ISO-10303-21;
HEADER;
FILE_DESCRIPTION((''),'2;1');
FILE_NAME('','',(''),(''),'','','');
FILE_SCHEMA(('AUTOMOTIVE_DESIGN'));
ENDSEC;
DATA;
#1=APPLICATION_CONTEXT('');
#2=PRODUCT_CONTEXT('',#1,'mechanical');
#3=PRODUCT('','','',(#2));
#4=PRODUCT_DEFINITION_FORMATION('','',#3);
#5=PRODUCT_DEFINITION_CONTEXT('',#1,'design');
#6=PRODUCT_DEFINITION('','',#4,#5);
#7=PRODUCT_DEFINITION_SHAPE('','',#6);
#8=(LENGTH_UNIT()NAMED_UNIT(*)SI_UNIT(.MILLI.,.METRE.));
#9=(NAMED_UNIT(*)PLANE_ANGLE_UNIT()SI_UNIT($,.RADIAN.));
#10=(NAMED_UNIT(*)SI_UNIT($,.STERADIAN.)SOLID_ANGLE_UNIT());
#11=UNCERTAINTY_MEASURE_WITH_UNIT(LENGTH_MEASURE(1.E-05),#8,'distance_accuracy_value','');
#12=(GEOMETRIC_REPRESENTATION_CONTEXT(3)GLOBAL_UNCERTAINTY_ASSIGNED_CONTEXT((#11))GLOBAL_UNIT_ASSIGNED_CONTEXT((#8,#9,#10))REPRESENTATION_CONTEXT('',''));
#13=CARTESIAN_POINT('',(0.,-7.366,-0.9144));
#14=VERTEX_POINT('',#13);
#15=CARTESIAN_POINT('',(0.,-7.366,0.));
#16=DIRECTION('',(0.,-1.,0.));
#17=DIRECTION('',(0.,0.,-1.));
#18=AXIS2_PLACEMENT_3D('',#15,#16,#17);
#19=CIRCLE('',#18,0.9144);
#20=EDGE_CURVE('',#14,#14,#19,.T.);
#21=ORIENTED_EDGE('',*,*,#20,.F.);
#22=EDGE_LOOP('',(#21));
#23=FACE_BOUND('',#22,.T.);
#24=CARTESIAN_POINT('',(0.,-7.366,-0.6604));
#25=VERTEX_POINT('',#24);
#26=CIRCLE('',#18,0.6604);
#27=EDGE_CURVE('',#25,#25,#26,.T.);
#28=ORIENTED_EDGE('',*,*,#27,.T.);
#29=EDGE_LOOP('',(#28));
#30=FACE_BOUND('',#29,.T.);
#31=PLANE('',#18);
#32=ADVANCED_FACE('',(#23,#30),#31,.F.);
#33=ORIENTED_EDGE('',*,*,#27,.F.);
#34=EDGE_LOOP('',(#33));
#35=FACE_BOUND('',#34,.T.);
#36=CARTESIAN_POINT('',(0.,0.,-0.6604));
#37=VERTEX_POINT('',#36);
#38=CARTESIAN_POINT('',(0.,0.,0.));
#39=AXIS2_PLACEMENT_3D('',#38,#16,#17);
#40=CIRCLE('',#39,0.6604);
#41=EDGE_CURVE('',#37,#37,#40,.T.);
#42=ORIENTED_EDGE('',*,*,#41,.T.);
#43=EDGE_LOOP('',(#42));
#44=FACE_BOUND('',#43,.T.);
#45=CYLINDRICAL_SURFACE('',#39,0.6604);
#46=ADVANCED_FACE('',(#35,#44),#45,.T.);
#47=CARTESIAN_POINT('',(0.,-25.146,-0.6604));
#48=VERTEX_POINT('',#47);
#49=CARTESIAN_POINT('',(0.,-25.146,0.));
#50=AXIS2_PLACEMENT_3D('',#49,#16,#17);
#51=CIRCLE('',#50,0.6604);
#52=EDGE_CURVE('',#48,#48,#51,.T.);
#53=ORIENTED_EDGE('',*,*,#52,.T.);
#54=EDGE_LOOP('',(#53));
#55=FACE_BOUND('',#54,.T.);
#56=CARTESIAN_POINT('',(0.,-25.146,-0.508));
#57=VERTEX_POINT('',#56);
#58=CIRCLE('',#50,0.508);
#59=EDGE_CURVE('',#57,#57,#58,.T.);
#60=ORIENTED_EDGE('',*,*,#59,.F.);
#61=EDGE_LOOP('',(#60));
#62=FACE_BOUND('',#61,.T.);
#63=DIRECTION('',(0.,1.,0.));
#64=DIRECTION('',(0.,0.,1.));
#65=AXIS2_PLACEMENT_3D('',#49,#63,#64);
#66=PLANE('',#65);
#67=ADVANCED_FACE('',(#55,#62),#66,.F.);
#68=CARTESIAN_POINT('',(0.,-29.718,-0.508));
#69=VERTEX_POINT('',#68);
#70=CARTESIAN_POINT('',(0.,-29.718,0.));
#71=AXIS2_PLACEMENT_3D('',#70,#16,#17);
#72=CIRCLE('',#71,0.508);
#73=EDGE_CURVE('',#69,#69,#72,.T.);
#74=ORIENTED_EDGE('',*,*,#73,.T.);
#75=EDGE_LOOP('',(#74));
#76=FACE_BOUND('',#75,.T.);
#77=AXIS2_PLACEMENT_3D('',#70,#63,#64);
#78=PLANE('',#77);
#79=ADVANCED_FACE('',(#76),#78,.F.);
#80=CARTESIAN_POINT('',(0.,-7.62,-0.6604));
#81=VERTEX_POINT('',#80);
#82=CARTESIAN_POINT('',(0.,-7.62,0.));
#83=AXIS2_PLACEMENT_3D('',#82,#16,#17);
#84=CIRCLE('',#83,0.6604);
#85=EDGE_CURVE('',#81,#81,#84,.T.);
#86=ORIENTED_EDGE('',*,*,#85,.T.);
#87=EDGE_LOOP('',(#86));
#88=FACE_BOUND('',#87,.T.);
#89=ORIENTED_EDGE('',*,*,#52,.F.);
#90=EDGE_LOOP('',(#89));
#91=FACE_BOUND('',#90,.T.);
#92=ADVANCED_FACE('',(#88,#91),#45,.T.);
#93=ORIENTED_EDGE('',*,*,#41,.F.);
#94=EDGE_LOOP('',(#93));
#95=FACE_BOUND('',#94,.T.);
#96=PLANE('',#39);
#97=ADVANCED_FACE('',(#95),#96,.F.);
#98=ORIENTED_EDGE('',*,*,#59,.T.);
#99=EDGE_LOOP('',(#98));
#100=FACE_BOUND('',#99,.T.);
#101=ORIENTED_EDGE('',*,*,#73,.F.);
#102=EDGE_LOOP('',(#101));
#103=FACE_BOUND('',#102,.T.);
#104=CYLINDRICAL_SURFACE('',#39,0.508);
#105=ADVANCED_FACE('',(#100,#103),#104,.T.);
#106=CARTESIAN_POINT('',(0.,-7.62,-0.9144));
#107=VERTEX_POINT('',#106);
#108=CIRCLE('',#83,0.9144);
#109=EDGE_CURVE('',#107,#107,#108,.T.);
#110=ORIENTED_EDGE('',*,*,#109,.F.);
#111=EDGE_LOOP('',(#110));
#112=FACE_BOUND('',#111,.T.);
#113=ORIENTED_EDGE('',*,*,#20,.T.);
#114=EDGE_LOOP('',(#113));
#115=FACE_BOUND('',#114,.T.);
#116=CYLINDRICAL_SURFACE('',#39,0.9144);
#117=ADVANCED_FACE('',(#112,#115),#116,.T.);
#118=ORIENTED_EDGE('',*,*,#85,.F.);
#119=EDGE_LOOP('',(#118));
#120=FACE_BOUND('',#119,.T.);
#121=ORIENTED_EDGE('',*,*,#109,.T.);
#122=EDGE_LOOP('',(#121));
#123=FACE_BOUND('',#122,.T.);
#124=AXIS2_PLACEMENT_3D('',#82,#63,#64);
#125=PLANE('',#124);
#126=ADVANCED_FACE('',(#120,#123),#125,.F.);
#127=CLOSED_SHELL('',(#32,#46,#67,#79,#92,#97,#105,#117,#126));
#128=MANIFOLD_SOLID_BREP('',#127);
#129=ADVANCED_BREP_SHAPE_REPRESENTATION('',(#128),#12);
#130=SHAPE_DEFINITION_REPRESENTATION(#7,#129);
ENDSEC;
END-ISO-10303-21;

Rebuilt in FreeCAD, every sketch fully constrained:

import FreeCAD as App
import Part
import Sketcher

V = App.Vector
Q = App.Units.Quantity


def add_polygon(sketch, points):
    """Adds a closed chain of lines whose ends are joined by coincident constraints."""
    first, n = sketch.GeometryCount, len(points)
    for a, b in zip(points, points[1:] + points[:1]):
        sketch.addGeometry(Part.LineSegment(App.Vector(*a, 0), App.Vector(*b, 0)), False)
    for i in range(n):
        sketch.addConstraint(Sketcher.Constraint("Coincident", first + i, 2, first + (i + 1) % n, 1))

doc = App.newDocument("Part")
body = doc.addObject("PartDesign::Body", "Body")

sketch1 = body.newObject("Sketcher::SketchObject", "Sketch")
sketch1.AttachmentSupport = (doc.getObject("XY_Plane"), [""])
sketch1.MapMode = "FlatFace"
add_polygon(sketch1, [(0, 0), (0, -29.718), (0.508, -29.718), (0.508, -25.146), (0.6604, -25.146), (0.6604, -7.62), (0.9144, -7.62), (0.9144, -7.366), (0.6604, -7.366), (0.6604, 0)])
sketch1.addConstraint([
    Sketcher.Constraint("Vertical", 0),
    Sketcher.Constraint("Horizontal", 1),
    Sketcher.Constraint("Vertical", 2),
    Sketcher.Constraint("Horizontal", 3),
    Sketcher.Constraint("Vertical", 4),
    Sketcher.Constraint("Horizontal", 5),
    Sketcher.Constraint("Vertical", 6),
    Sketcher.Constraint("Horizontal", 7),
    Sketcher.Constraint("Vertical", 8),
    Sketcher.Constraint("Horizontal", 9),
    Sketcher.Constraint("Coincident", 9, 2, -1, 1),
    Sketcher.Constraint("Vertical", 4, 2, 7, 2),
    Sketcher.Constraint("Equal", 7, 6),
    Sketcher.Constraint("DistanceX", 1, 1, 1, 2, Q("0.02 in")),
    Sketcher.Constraint("DistanceX", 5, 1, 5, 2, Q("0.01 in")),
    Sketcher.Constraint("DistanceY", 0, 2, 0, 1, Q("1.17 in")),
    Sketcher.Constraint("DistanceY", 2, 1, 2, 2, Q("0.18 in")),
    Sketcher.Constraint("DistanceY", 4, 1, 4, 2, Q("0.69 in")),
    Sketcher.Constraint("DistanceX", 3, 1, 3, 2, Q("0.006 in")),
])
revolution = body.newObject("PartDesign::Revolution", "Revolution")
revolution.Profile = sketch1
revolution.ReferenceAxis = (sketch1, ["V_Axis"])
revolution.Angle = 360

doc.recompute()
